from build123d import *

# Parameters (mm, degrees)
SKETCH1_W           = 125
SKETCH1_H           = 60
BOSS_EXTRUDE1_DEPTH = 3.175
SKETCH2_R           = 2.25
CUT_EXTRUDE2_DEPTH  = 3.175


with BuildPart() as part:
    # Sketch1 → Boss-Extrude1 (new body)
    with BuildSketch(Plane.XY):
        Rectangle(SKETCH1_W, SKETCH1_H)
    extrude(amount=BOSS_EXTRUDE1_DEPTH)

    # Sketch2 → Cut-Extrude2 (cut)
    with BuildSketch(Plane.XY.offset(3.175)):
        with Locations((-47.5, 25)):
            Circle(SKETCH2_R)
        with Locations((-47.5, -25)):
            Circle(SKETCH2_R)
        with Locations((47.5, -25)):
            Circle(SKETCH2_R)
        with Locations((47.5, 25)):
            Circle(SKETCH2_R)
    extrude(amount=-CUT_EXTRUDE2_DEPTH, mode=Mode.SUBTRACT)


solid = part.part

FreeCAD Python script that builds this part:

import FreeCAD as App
import Part
import Sketcher
from FreeCAD import Vector
Q = App.Units.Quantity

doc = App.newDocument("Part")
body = doc.addObject("PartDesign::Body", "Body")

# Sketch on XY plane
sketch1 = body.newObject("Sketcher::SketchObject", "Sketch")
sketch1.AttachmentSupport = (doc.getObject("XY_Plane"), [""])
sketch1.MapMode = "FlatFace"
sketch1.addGeometry(Part.LineSegment(Vector(-62, 30, 0), Vector(-62, -30, 0)), False)
sketch1.addGeometry(Part.LineSegment(Vector(-62, -30, 0), Vector(62, -30, 0)), False)
sketch1.addGeometry(Part.LineSegment(Vector(62, -30, 0), Vector(62, 30, 0)), False)
sketch1.addGeometry(Part.LineSegment(Vector(62, 30, 0), Vector(-62, 30, 0)), False)
sketch1.addConstraint(Sketcher.Constraint("Coincident", 0, 2, 1, 1))
sketch1.addConstraint(Sketcher.Constraint("Coincident", 1, 2, 2, 1))
sketch1.addConstraint(Sketcher.Constraint("Coincident", 2, 2, 3, 1))
sketch1.addConstraint(Sketcher.Constraint("Coincident", 3, 2, 0, 1))
sketch1.addConstraint(Sketcher.Constraint("Vertical", 0))
sketch1.addConstraint(Sketcher.Constraint("Horizontal", 1))
sketch1.addConstraint(Sketcher.Constraint("Vertical", 2))
sketch1.addConstraint(Sketcher.Constraint("Horizontal", 3))
sketch1.addConstraint(Sketcher.Constraint("Symmetric", 0, 2, 2, 2, -1, 1))
sketch1.addConstraint(Sketcher.Constraint("DistanceX", 1, 1, 1, 2, Q("125 mm")))
sketch1.addConstraint(Sketcher.Constraint("DistanceY", 0, 2, 0, 1, Q("60 mm")))
pad1 = body.newObject("PartDesign::Pad", "Pad")
pad1.Profile = sketch1
pad1.Length = 3.175

# Sketch on XY plane
sketch2 = body.newObject("Sketcher::SketchObject", "Sketch001")
sketch2.AttachmentSupport = (doc.getObject("XY_Plane"), [""])
sketch2.MapMode = "FlatFace"
sketch2.AttachmentOffset = App.Placement(Vector(0, 0, 3.175), App.Rotation())
sketch2.addGeometry(Part.Circle(Vector(-47.5, 25, 0), Vector(0, 0, 1), 2.2), False)
sketch2.addGeometry(Part.Circle(Vector(-47.5, -25, 0), Vector(0, 0, 1), 2.2), False)
sketch2.addGeometry(Part.Circle(Vector(47.5, -25, 0), Vector(0, 0, 1), 2.2), False)
sketch2.addGeometry(Part.Circle(Vector(47.5, 25, 0), Vector(0, 0, 1), 2.2), False)
sketch2.addConstraint(Sketcher.Constraint("Equal", 0, 1))
sketch2.addConstraint(Sketcher.Constraint("Equal", 1, 2))
sketch2.addConstraint(Sketcher.Constraint("Equal", 2, 3))
sketch2.addConstraint(Sketcher.Constraint("Symmetric", 0, 3, 2, 3, -1, 1))
sketch2.addConstraint(Sketcher.Constraint("Symmetric", 1, 3, 3, 3, -1, 1))
sketch2.addConstraint(Sketcher.Constraint("Symmetric", 1, 3, 2, 3, -2))
sketch2.addConstraint(Sketcher.Constraint("Diameter", 0, Q("4.5 mm")))
sketch2.addConstraint(Sketcher.Constraint("DistanceY", -1, 1, 0, 3, Q("25 mm")))
sketch2.addConstraint(Sketcher.Constraint("DistanceX", 1, 3, 2, 3, Q("95 mm")))
pocket1 = body.newObject("PartDesign::Pocket", "Pocket")
pocket1.Profile = sketch2
pocket1.Length = 3.175

doc.recompute()
